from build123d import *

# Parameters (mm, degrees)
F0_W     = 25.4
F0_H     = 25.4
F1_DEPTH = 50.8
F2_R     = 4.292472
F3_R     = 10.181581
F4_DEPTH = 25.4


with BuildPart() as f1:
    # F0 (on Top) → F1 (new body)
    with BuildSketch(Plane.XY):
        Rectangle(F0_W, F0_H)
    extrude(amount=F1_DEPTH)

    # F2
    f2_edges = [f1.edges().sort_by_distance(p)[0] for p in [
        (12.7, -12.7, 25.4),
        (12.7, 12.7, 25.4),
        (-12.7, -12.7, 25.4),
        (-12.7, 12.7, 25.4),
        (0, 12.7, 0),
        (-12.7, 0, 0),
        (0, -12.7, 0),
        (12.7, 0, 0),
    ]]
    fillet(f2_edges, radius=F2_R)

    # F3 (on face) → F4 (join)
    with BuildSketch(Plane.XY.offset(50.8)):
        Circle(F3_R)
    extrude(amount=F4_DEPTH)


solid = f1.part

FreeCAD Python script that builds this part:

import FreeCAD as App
import Part
import Sketcher
from FreeCAD import Vector
Q = App.Units.Quantity


def edges_at(feature, points):
    """Names of the edges that pass closest to the given points."""
    edges = feature.Shape.Edges
    near = lambda p: min(range(len(edges)), key=lambda i: edges[i].distToShape(Part.Vertex(*p))[0])
    return sorted({f"Edge{near(p) + 1}" for p in points})


def add_polygon(sketch, points):
    """Adds a closed chain of lines whose ends are joined by coincident constraints."""
    first, n = sketch.GeometryCount, len(points)
    for a, b in zip(points, points[1:] + points[:1]):
        sketch.addGeometry(Part.LineSegment(App.Vector(*a, 0), App.Vector(*b, 0)), False)
    for i in range(n):
        sketch.addConstraint(Sketcher.Constraint("Coincident", first + i, 2, first + (i + 1) % n, 1))

doc = App.newDocument("Part")
params = doc.addObject("Spreadsheet::Sheet", "Params")
for row, (alias, value) in enumerate([
    ("sketch1_width", "1 in"),
    ("pad1_length", "2 in"),
    ("fillet_radius", "4.292472 mm"),
    ("pad2_length", "1 in"),
], start=1):
    params.set(f"A{row}", alias)
    params.set(f"B{row}", "=" + value)
    params.setAlias(f"B{row}", alias)

body = doc.addObject("PartDesign::Body", "Body")

# Sketch on XY plane
sketch1 = doc.addObject("Sketcher::SketchObject", "Sketch")
body.addObject(sketch1)
sketch1.AttachmentSupport = (doc.XY_Plane, [""])
sketch1.MapMode = "FlatFace"
add_polygon(sketch1, [(-13, 13), (-13, -13), (13, -13), (13, 13)])  # lines 0-3
sketch1.addConstraint([
    Sketcher.Constraint("Vertical", 0),
    Sketcher.Constraint("Horizontal", 1),
    Sketcher.Constraint("Vertical", 2),
    Sketcher.Constraint("Horizontal", 3),
    Sketcher.Constraint("Symmetric", 0, 2, 2, 2, -1, 1),
    Sketcher.Constraint("Equal", 3, 0),
    Sketcher.Constraint("DistanceX", 1, 1, 1, 2, Q("1 in")),
])
sketch1.setExpression("Constraints[10]", "Params.sketch1_width")
pad1 = doc.addObject("PartDesign::Pad", "Pad")
body.addObject(pad1)
pad1.Profile = sketch1
pad1.setExpression("Length", "Params.pad1_length")
doc.recompute()

fillet = doc.addObject("PartDesign::Fillet", "Fillet")
body.addObject(fillet)
fillet.Base = (pad1, edges_at(pad1, [
    (12.7, -12.7, 25.4),
    (12.7, 12.7, 25.4),
    (-12.7, -12.7, 25.4),
    (-12.7, 12.7, 25.4),
    (0, 12.7, 0),
    (-12.7, 0, 0),
    (0, -12.7, 0),
    (12.7, 0, 0),
]))
fillet.setExpression("Radius", "Params.fillet_radius")

# Sketch on XY plane
sketch2 = doc.addObject("Sketcher::SketchObject", "Sketch001")
body.addObject(sketch2)
sketch2.AttachmentSupport = (doc.XY_Plane, [""])
sketch2.MapMode = "FlatFace"
sketch2.AttachmentOffset = App.Placement(Vector(0, 0, 2 * 25.4), App.Rotation())
sketch2.addGeometry(Part.Circle(Vector(0, 0, 0), Vector(0, 0, 1), 10), False)
sketch2.addConstraint([
    Sketcher.Constraint("Coincident", 0, 3, -1, 1),
    Sketcher.Constraint("Diameter", 0, 20.363162),
])
pad2 = doc.addObject("PartDesign::Pad", "Pad001")
body.addObject(pad2)
pad2.Profile = sketch2
pad2.setExpression("Length", "Params.pad2_length")

doc.recompute()
